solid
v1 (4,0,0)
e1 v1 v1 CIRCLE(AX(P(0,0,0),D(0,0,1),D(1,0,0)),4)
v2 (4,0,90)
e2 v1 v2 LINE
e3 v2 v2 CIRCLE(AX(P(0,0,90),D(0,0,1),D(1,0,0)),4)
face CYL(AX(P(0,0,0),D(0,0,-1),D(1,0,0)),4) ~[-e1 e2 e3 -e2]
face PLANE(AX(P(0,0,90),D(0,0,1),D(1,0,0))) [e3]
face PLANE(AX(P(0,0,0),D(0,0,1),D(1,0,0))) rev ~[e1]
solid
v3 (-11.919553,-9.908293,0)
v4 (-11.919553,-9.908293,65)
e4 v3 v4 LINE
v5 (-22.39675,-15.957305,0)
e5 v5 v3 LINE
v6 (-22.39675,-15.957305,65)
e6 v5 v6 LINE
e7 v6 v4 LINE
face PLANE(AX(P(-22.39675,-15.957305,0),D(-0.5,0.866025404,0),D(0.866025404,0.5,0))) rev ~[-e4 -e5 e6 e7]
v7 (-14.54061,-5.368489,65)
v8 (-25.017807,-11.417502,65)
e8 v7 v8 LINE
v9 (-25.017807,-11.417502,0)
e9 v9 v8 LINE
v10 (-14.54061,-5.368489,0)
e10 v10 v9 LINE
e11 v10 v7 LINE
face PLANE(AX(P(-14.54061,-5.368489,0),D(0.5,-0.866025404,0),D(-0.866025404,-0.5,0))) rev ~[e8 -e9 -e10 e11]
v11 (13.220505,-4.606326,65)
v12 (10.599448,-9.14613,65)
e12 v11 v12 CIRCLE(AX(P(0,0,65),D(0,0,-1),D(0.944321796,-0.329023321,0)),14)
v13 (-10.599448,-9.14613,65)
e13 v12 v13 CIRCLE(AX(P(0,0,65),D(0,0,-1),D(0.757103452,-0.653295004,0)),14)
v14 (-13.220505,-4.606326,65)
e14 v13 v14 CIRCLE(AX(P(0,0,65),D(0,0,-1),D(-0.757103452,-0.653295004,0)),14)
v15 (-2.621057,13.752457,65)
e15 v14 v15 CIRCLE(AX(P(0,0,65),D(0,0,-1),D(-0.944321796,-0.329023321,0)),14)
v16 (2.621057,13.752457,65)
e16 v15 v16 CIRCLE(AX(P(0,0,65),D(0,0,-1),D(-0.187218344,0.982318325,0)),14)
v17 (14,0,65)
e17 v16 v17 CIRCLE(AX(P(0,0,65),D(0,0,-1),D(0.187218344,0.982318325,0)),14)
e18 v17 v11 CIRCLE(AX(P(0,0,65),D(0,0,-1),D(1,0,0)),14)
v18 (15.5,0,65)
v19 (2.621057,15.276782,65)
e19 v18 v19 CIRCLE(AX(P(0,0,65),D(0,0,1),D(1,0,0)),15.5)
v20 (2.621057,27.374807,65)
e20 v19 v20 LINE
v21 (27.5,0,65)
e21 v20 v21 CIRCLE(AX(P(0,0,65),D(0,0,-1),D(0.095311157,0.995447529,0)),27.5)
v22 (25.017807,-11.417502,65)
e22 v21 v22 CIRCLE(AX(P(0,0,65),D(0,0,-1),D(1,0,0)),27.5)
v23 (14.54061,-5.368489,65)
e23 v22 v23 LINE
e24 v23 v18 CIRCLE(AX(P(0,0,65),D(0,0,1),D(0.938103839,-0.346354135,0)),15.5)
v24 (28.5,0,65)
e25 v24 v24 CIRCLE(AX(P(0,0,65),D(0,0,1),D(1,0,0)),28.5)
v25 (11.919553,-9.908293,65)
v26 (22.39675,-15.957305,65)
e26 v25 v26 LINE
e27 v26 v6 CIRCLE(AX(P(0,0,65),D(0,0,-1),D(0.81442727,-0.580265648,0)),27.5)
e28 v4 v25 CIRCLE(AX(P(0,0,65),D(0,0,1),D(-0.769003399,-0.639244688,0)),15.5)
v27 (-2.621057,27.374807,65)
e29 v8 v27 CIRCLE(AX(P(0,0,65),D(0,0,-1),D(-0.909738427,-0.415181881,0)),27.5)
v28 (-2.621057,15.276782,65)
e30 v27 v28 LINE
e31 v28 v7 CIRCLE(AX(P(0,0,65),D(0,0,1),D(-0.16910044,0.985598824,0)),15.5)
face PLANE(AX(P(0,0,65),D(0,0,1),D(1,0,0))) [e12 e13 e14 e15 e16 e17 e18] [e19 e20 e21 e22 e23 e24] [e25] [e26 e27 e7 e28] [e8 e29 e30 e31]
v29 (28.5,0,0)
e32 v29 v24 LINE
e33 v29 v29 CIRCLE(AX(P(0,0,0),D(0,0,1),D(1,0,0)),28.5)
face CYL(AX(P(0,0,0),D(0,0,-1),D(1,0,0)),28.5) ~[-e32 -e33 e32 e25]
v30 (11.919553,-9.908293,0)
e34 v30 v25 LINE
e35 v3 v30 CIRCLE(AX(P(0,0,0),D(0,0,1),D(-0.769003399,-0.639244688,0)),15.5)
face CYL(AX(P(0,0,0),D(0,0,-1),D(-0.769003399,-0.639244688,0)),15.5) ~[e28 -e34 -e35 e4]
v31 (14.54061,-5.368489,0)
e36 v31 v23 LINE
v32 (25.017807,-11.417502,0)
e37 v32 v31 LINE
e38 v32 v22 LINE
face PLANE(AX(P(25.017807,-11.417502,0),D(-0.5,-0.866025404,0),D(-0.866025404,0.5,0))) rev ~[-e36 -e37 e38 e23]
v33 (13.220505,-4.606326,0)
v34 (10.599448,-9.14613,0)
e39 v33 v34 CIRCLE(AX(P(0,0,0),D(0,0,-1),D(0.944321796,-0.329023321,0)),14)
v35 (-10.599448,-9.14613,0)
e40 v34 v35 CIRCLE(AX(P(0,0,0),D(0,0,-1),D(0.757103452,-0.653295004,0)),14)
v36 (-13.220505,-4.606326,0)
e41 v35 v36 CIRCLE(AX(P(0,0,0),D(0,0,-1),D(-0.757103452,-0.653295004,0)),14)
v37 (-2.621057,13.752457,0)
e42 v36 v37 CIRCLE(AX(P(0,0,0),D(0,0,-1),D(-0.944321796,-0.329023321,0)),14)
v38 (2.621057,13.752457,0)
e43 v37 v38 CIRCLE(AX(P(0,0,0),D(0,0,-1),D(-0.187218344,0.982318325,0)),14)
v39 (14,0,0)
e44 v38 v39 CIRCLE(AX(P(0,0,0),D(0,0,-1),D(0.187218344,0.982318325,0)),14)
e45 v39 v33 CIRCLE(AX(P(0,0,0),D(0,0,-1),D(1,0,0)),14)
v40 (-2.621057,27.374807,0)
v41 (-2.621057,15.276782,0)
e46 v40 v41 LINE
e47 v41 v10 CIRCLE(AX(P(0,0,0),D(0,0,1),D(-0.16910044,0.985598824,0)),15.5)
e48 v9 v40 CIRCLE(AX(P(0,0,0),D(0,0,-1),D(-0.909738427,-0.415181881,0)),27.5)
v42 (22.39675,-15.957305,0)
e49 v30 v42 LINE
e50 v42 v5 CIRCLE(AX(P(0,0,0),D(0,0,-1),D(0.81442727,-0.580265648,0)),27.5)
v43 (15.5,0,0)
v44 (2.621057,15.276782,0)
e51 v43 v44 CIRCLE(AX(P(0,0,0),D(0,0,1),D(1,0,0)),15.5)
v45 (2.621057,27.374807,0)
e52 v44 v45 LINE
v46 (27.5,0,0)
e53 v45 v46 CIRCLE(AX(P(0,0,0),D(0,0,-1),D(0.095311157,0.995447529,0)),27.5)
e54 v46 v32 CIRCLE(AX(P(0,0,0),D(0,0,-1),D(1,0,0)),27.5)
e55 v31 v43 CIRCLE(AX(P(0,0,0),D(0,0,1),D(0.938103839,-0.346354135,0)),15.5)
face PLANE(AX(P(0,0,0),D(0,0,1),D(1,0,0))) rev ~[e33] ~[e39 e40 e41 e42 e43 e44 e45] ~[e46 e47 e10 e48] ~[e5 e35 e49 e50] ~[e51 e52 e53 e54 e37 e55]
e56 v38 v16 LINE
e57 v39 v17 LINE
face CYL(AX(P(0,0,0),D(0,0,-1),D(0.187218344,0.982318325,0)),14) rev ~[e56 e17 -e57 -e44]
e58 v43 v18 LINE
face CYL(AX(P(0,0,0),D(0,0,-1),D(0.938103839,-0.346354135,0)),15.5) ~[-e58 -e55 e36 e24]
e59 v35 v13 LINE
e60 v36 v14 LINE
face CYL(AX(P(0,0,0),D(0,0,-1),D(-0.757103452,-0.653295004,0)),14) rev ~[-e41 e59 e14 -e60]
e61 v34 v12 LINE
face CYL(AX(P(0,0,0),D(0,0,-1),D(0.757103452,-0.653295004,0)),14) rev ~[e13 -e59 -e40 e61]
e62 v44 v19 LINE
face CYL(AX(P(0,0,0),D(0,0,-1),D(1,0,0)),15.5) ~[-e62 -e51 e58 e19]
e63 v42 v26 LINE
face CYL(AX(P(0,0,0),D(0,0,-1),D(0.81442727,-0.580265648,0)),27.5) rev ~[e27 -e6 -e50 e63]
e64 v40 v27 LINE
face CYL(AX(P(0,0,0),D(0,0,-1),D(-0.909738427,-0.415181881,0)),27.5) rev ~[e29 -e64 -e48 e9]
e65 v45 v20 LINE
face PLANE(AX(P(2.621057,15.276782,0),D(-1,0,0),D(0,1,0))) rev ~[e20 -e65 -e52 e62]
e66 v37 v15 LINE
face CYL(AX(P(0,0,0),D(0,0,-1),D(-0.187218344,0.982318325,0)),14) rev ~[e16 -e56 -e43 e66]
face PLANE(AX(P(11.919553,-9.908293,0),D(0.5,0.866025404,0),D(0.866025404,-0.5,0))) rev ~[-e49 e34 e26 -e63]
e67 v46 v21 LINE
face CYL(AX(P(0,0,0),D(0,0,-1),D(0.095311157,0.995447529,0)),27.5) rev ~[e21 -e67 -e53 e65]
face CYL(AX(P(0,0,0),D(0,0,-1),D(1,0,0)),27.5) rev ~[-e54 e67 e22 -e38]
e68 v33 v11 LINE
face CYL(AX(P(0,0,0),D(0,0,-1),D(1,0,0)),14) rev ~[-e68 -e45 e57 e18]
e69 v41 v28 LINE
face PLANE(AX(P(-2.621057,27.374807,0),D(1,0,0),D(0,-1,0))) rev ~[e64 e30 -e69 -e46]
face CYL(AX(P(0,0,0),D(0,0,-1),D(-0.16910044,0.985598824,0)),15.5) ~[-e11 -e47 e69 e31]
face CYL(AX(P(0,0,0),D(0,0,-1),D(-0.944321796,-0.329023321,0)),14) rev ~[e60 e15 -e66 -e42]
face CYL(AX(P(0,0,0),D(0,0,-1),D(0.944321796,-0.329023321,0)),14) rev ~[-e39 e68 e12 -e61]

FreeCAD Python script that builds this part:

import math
import FreeCAD as App
import Part
import Sketcher
from FreeCAD import Vector
Q = App.Units.Quantity

doc = App.newDocument("Part")
body = doc.addObject("PartDesign::Body", "Body")

sketch1 = body.newObject("Sketcher::SketchObject", "Sketch")
sketch1.AttachmentSupport = (doc.getObject("XY_Plane"), [""])
sketch1.MapMode = "FlatFace"
sketch1.addGeometry([
    Part.Circle(Vector(0, 0, 0), Vector(0, 0, 1), 28.5),
    Part.ArcOfCircle(Part.Circle(Vector(0, 0, 0), Vector(0, 0, 1), 15.5), math.radians(-140), math.radians(-40)),
    Part.LineSegment(Vector(11.9, -9.9, 0), Vector(22.4, -16, 0)),
    Part.ArcOfCircle(Part.Circle(Vector(0, 0, 0), Vector(0, 0, 1), 27.5), math.radians(-145), math.radians(-35)),
    Part.LineSegment(Vector(-22.4, -16, 0), Vector(-11.9, -9.9, 0)),
    Part.ArcOfCircle(Part.Circle(Vector(0, 0, 0), Vector(0, 0, 1), 15.5), math.radians(100), math.radians(200)),
    Part.LineSegment(Vector(-14.5, -5.4, 0), Vector(-25, -11.4, 0)),
    Part.ArcOfCircle(Part.Circle(Vector(0, 0, 0), Vector(0, 0, 1), 27.5), math.radians(95), math.radians(205)),
    Part.LineSegment(Vector(-2.6, 27.4, 0), Vector(-2.6, 15.3, 0)),
    Part.ArcOfCircle(Part.Circle(Vector(0, 0, 0), Vector(0, 0, 1), 14), math.radians(-19.21), math.radians(0)),
    Part.ArcOfCircle(Part.Circle(Vector(0, 0, 0), Vector(0, 0, 1), 14), math.radians(-41), math.radians(-19)),
    Part.ArcOfCircle(Part.Circle(Vector(0, 0, 0), Vector(0, 0, 1), 14), math.radians(-139), math.radians(-41)),
    Part.ArcOfCircle(Part.Circle(Vector(0, 0, 0), Vector(0, 0, 1), 14), math.radians(-161), math.radians(-139)),
    Part.ArcOfCircle(Part.Circle(Vector(0, 0, 0), Vector(0, 0, 1), 14), math.radians(101), math.radians(199)),
    Part.ArcOfCircle(Part.Circle(Vector(0, 0, 0), Vector(0, 0, 1), 14), math.radians(79), math.radians(101)),
    Part.ArcOfCircle(Part.Circle(Vector(0, 0, 0), Vector(0, 0, 1), 14), math.radians(0), math.radians(79)),
    Part.LineSegment(Vector(25, -11.4, 0), Vector(14.5, -5.4, 0)),
    Part.ArcOfCircle(Part.Circle(Vector(0, 0, 0), Vector(0, 0, 1), 15.5), math.radians(-20), math.radians(0)),
    Part.ArcOfCircle(Part.Circle(Vector(0, 0, 0), Vector(0, 0, 1), 15.5), math.radians(0), math.radians(80)),
    Part.LineSegment(Vector(2.6, 15.3, 0), Vector(2.6, 27.4, 0)),
    Part.ArcOfCircle(Part.Circle(Vector(0, 0, 0), Vector(0, 0, 1), 27.5), math.radians(0), math.radians(85)),
    Part.ArcOfCircle(Part.Circle(Vector(0, 0, 0), Vector(0, 0, 1), 27.5), math.radians(-25), math.radians(0)),
], False)
sketch1.addConstraint([
    Sketcher.Constraint("Coincident", 1, 2, 2, 1),
    Sketcher.Constraint("Coincident", 2, 2, 3, 2),
    Sketcher.Constraint("Coincident", 3, 1, 4, 1),
    Sketcher.Constraint("Coincident", 4, 2, 1, 1),
    Sketcher.Constraint("Coincident", 5, 2, 6, 1),
    Sketcher.Constraint("Coincident", 6, 2, 7, 2),
    Sketcher.Constraint("Coincident", 7, 1, 8, 1),
    Sketcher.Constraint("Coincident", 8, 2, 5, 1),
    Sketcher.Constraint("Tangent", 9, 1, 10, 2),
    Sketcher.Constraint("Tangent", 10, 1, 11, 2),
    Sketcher.Constraint("Tangent", 11, 1, 12, 2),
    Sketcher.Constraint("Tangent", 12, 1, 13, 2),
    Sketcher.Constraint("Tangent", 13, 1, 14, 2),
    Sketcher.Constraint("Tangent", 14, 1, 15, 2),
    Sketcher.Constraint("Tangent", 15, 1, 9, 2),
    Sketcher.Constraint("Coincident", 16, 2, 17, 1),
    Sketcher.Constraint("Tangent", 17, 2, 18, 1),
    Sketcher.Constraint("Coincident", 18, 2, 19, 1),
    Sketcher.Constraint("Coincident", 19, 2, 20, 2),
    Sketcher.Constraint("Tangent", 20, 1, 21, 2),
    Sketcher.Constraint("Coincident", 21, 1, 16, 1),
    Sketcher.Constraint("Vertical", 8),
    Sketcher.Constraint("Vertical", 19),
    Sketcher.Constraint("Coincident", 0, 3, -1, 1),
    Sketcher.Constraint("Coincident", 1, 3, -1, 1),
    Sketcher.Constraint("Coincident", 3, 3, -1, 1),
    Sketcher.Constraint("Coincident", 5, 3, -1, 1),
    Sketcher.Constraint("Coincident", 7, 3, -1, 1),
    Sketcher.Constraint("Coincident", 9, 3, -1, 1),
    Sketcher.Constraint("Coincident", 11, 3, -1, 1),
    Sketcher.Constraint("Coincident", 13, 3, -1, 1),
    Sketcher.Constraint("Coincident", 17, 3, -1, 1),
    Sketcher.Constraint("Coincident", 20, 3, -1, 1),
    Sketcher.Constraint("Equal", 1, 5),
    Sketcher.Constraint("Equal", 3, 7),
    Sketcher.Constraint("Equal", 5, 17),
    Sketcher.Constraint("Equal", 17, 18),
    Sketcher.Constraint("Equal", 7, 20),
    Sketcher.Constraint("Equal", 20, 21),
    Sketcher.Constraint("PointOnObject", 15, 1, -1),
    Sketcher.Constraint("PointOnObject", 17, 2, -1),
    Sketcher.Constraint("PointOnObject", 20, 1, -1),
    Sketcher.Constraint("Parallel", 4, 6),
    Sketcher.Constraint("Parallel", 2, 16),
    Sketcher.Constraint("Horizontal", 2, 2, 3, 1),
    Sketcher.Constraint("Horizontal", 1, 2, 4, 2),
    Sketcher.Constraint("Horizontal", 10, 1, 11, 1),
    Sketcher.Constraint("Horizontal", 9, 1, 12, 1),
    Sketcher.Constraint("Horizontal", 13, 1, 14, 1),
    Sketcher.Constraint("Horizontal", 5, 2, 16, 2),
    Sketcher.Constraint("Horizontal", 8, 2, 18, 2),
    Sketcher.Constraint("Vertical", 8, 2, 13, 1),
    Sketcher.Constraint("Equal", 4, 6),
    Sketcher.Constraint("Diameter", 0, 57.0),
    Sketcher.Constraint("Radius", 9, 14.0),
    Sketcher.Constraint("Radius", 1, 15.5),
    Sketcher.Constraint("Radius", 3, 27.5),
    Sketcher.Constraint("Angle", 2, Q("-30 deg")),
    Sketcher.Constraint("DistanceY", 6, 2, -1, 1, 11.417502),
    Sketcher.Constraint("DistanceX", 10, 1, 2, 2, 11.797302),
    Sketcher.Constraint("DistanceX", 6, 2, 12, 1, 11.797302),
    Sketcher.Constraint("DistanceY", 8, 2, 8, 1, 12.098025),
])
pad1 = body.newObject("PartDesign::Pad", "Pad")
pad1.Profile = sketch1
pad1.Length = 65
body2 = doc.addObject("PartDesign::Body", "Body001")

sketch2 = body2.newObject("Sketcher::SketchObject", "Sketch001")
sketch2.AttachmentSupport = (doc.getObject("XY_Plane001"), [""])
sketch2.MapMode = "FlatFace"
sketch2.addGeometry(Part.Circle(Vector(0, 0, 0), Vector(0, 0, 1), 4), False)
sketch2.addConstraint([
    Sketcher.Constraint("Coincident", 0, 3, -1, 1),
    Sketcher.Constraint("Diameter", 0, 8.0),
])
pad2 = body2.newObject("PartDesign::Pad", "Pad001")
pad2.Profile = sketch2
pad2.Length = 90

doc.recompute()
